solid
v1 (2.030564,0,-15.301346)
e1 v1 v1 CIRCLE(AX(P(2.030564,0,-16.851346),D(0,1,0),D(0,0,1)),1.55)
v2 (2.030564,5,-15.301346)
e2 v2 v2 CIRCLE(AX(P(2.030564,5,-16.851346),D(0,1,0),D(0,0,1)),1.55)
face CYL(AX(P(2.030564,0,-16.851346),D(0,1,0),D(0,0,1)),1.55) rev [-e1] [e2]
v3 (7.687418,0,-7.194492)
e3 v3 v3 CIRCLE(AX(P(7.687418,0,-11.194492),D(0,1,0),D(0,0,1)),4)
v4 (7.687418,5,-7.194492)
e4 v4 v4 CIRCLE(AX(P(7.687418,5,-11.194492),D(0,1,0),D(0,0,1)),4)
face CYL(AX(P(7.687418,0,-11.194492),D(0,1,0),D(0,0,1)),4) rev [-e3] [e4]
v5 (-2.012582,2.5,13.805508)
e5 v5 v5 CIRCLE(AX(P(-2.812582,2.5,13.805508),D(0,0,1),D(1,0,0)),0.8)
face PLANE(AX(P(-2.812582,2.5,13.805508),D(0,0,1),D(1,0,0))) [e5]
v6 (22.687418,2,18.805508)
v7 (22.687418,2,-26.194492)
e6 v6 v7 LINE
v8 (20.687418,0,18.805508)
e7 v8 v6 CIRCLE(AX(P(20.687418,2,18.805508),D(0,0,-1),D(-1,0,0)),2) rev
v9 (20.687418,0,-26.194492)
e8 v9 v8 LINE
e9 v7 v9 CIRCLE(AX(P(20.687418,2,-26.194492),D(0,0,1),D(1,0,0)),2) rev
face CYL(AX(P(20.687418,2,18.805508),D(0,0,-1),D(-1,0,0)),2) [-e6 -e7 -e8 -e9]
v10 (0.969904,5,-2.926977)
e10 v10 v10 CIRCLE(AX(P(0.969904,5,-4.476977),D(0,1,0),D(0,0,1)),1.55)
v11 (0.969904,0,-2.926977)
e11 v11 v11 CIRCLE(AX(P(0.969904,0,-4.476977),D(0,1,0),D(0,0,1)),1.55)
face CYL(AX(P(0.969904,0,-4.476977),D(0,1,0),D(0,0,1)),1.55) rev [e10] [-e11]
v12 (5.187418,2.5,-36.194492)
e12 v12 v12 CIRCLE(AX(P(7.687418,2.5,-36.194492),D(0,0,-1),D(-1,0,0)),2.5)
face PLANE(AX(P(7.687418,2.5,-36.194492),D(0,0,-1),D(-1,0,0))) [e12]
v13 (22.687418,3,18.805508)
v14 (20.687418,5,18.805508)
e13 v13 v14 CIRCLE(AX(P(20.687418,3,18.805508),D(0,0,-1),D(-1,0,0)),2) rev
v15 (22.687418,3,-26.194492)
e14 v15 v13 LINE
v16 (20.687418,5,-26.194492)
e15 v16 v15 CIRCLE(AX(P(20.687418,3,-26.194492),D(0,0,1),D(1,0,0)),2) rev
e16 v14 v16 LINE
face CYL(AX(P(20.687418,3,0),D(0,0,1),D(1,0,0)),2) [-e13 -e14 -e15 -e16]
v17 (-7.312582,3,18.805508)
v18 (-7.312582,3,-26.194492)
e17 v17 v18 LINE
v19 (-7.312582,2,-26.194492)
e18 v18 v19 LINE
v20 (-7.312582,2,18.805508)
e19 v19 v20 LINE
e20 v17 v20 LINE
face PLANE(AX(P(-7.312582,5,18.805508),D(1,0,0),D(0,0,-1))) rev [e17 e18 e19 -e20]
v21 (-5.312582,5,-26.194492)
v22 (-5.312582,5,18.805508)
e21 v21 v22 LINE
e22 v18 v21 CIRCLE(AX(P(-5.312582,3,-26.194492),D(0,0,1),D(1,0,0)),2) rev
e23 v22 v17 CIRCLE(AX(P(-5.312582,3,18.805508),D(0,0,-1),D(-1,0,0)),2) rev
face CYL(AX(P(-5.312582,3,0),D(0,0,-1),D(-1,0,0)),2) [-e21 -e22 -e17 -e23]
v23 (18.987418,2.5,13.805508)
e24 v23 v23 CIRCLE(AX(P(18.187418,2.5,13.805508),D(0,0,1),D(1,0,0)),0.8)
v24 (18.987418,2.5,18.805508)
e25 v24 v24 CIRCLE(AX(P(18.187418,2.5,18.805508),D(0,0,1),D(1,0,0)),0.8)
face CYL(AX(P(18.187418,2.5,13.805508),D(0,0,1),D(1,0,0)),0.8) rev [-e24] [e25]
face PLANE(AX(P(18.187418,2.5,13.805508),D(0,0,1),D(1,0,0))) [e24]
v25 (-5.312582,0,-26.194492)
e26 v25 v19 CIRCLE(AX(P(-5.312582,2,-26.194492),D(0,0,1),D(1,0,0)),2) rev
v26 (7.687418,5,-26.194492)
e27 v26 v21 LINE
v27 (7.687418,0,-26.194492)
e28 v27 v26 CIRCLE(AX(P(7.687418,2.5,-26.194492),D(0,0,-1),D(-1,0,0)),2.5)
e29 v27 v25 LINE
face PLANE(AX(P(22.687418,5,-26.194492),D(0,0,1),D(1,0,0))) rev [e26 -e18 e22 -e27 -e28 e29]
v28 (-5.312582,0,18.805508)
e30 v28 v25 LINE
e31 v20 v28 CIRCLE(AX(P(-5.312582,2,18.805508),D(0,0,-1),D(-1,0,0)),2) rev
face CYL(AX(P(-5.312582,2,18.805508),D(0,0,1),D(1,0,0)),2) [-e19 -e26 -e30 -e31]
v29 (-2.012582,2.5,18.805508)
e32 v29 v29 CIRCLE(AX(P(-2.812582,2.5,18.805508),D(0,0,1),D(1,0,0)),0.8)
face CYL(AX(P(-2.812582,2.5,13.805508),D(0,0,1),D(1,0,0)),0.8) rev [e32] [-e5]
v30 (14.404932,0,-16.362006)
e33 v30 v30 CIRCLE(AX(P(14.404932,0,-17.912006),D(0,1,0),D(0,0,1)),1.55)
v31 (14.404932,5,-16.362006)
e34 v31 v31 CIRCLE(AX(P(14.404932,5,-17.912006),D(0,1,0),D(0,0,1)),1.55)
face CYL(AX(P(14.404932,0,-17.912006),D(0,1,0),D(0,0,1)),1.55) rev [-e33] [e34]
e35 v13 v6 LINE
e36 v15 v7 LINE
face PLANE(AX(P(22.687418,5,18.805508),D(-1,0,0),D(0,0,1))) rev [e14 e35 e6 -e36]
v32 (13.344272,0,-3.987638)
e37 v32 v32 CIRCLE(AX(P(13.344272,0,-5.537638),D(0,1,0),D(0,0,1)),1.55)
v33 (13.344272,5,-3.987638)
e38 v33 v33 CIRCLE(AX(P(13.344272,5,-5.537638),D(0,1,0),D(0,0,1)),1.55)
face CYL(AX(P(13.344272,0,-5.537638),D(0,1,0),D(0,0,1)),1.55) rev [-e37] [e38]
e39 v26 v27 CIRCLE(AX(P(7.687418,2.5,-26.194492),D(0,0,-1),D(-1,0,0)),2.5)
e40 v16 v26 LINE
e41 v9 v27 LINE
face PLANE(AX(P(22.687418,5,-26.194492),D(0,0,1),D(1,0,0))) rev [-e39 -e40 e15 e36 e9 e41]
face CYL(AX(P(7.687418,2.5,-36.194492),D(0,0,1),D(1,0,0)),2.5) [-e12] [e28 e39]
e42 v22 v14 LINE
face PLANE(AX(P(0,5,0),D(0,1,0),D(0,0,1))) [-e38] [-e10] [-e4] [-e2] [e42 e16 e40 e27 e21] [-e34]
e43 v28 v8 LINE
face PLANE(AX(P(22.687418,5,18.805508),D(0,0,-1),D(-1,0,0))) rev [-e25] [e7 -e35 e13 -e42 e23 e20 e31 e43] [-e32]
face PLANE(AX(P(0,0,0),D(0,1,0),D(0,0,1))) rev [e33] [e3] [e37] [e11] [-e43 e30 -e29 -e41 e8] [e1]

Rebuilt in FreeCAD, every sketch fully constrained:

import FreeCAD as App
import Part
import Sketcher
Q = App.Units.Quantity


def edges_at(feature, points):
    """Names of the edges that pass closest to the given points."""
    edges = feature.Shape.Edges
    near = lambda p: min(range(len(edges)), key=lambda i: edges[i].distToShape(Part.Vertex(*p))[0])
    return sorted({f"Edge{near(p) + 1}" for p in points})


def add_polygon(sketch, points):
    """Adds a closed chain of lines whose ends are joined by coincident constraints."""
    first, n = sketch.GeometryCount, len(points)
    for a, b in zip(points, points[1:] + points[:1]):
        sketch.addGeometry(Part.LineSegment(App.Vector(*a, 0), App.Vector(*b, 0)), False)
    for i in range(n):
        sketch.addConstraint(Sketcher.Constraint("Coincident", first + i, 2, first + (i + 1) % n, 1))

doc = App.newDocument("Part")
body = doc.addObject("PartDesign::Body", "Body")

sketch1 = doc.addObject("Sketcher::SketchObject", "Sketch")
body.addObject(sketch1)
sketch1.AttachmentSupport = (doc.XZ_Plane, [""])
sketch1.MapMode = "FlatFace"
add_polygon(sketch1, [(-7, -26), (-7, 19), (23, 19), (23, -26)])
sketch1.addConstraint(Sketcher.Constraint("Vertical", 0))
sketch1.addConstraint(Sketcher.Constraint("Horizontal", 1))
sketch1.addConstraint(Sketcher.Constraint("Vertical", 2))
sketch1.addConstraint(Sketcher.Constraint("Horizontal", 3))
sketch1.addConstraint(Sketcher.Constraint("DistanceX", 1, 1, 1, 2, Q("30 mm")))
sketch1.addConstraint(Sketcher.Constraint("DistanceY", 0, 1, 0, 2, Q("45 mm")))
sketch1.addConstraint(Sketcher.Constraint("DistanceY", -1, 1, 0, 2, Q("18.805508 mm")))
sketch1.addConstraint(Sketcher.Constraint("DistanceX", 0, 2, -1, 1, Q("7.312582 mm")))
pad1 = doc.addObject("PartDesign::Pad", "Pad")
body.addObject(pad1)
pad1.Profile = sketch1
pad1.Length = 5
pad1.Reversed = True

sketch2 = doc.addObject("Sketcher::SketchObject", "Sketch001")
body.addObject(sketch2)
sketch2.AttachmentSupport = (doc.XZ_Plane, [""])
sketch2.MapMode = "FlatFace"
sketch2.AttachmentOffset = App.Placement(App.Vector(0, 0, -5), App.Rotation())
sketch2.addGeometry(Part.Circle(App.Vector(7.7, -11.2, 0), App.Vector(0, 0, 1), 4), False)
sketch2.addConstraint(Sketcher.Constraint("Diameter", 0, Q("8 mm")))
sketch2.addConstraint(Sketcher.Constraint("DistanceY", 0, 3, -1, 1, Q("11.194492 mm")))
sketch2.addConstraint(Sketcher.Constraint("DistanceX", -1, 1, 0, 3, Q("7.687418 mm")))
pocket1 = doc.addObject("PartDesign::Pocket", "Pocket")
body.addObject(pocket1)
pocket1.Profile = sketch2
pocket1.Length = 5
pocket1.Reversed = True

sketch3 = doc.addObject("Sketcher::SketchObject", "Sketch002")
body.addObject(sketch3)
sketch3.AttachmentSupport = (doc.XZ_Plane, [""])
sketch3.MapMode = "FlatFace"
sketch3.AttachmentOffset = App.Placement(App.Vector(0, 0, -5), App.Rotation())
sketch3.addGeometry(Part.Circle(App.Vector(2, -16.9, 0), App.Vector(0, 0, 1), 1.6), False)
sketch3.addGeometry(Part.Circle(App.Vector(14.4, -17.9, 0), App.Vector(0, 0, 1), 1.6), False)
sketch3.addGeometry(Part.Circle(App.Vector(13.3, -5.5, 0), App.Vector(0, 0, 1), 1.6), False)
sketch3.addGeometry(Part.Circle(App.Vector(1, -4.5, 0), App.Vector(0, 0, 1), 1.6), False)
sketch3.addConstraint(Sketcher.Constraint("Equal", 0, 1))
sketch3.addConstraint(Sketcher.Constraint("Equal", 1, 2))
sketch3.addConstraint(Sketcher.Constraint("Equal", 2, 3))
sketch3.addConstraint(Sketcher.Constraint("Diameter", 0, Q("3.1 mm")))
sketch3.addConstraint(Sketcher.Constraint("DistanceX", 0, 3, 1, 3, Q("12.374369 mm")))
sketch3.addConstraint(Sketcher.Constraint("DistanceY", 1, 3, 0, 3, Q("1.06066 mm")))
sketch3.addConstraint(Sketcher.Constraint("DistanceX", 2, 3, 1, 3, Q("1.06066 mm")))
sketch3.addConstraint(Sketcher.Constraint("DistanceY", 1, 3, 2, 3, Q("12.374369 mm")))
sketch3.addConstraint(Sketcher.Constraint("DistanceX", 3, 3, 2, 3, Q("12.374369 mm")))
sketch3.addConstraint(Sketcher.Constraint("DistanceY", 2, 3, 3, 3, Q("1.06066 mm")))
sketch3.addConstraint(Sketcher.Constraint("DistanceX", -1, 1, 0, 3, Q("2.030564 mm")))
sketch3.addConstraint(Sketcher.Constraint("DistanceY", 0, 3, -1, 1, Q("16.851346 mm")))
pocket2 = doc.addObject("PartDesign::Pocket", "Pocket001")
body.addObject(pocket2)
pocket2.Profile = sketch3
pocket2.Length = 5
pocket2.Reversed = True

sketch4 = doc.addObject("Sketcher::SketchObject", "Sketch003")
body.addObject(sketch4)
sketch4.AttachmentSupport = (doc.XY_Plane, [""])
sketch4.MapMode = "FlatFace"
sketch4.AttachmentOffset = App.Placement(App.Vector(0, 0, 18.805508), App.Rotation())
sketch4.addGeometry(Part.Circle(App.Vector(-2.8, 2.5, 0), App.Vector(0, 0, 1), 0.8), False)
sketch4.addGeometry(Part.Circle(App.Vector(18.2, 2.5, 0), App.Vector(0, 0, 1), 0.8), False)
sketch4.addConstraint(Sketcher.Constraint("Equal", 0, 1))
sketch4.addConstraint(Sketcher.Constraint("Horizontal", 0, 3, 1, 3))
sketch4.addConstraint(Sketcher.Constraint("Diameter", 0, Q("1.6 mm")))
sketch4.addConstraint(Sketcher.Constraint("DistanceX", 0, 3, 1, 3, Q("21 mm")))
sketch4.addConstraint(Sketcher.Constraint("DistanceY", -1, 1, 0, 3, Q("2.5 mm")))
sketch4.addConstraint(Sketcher.Constraint("DistanceX", 0, 3, -1, 1, Q("2.812582 mm")))
pocket3 = doc.addObject("PartDesign::Pocket", "Pocket002")
body.addObject(pocket3)
pocket3.Profile = sketch4
pocket3.Length = 5

sketch5 = doc.addObject("Sketcher::SketchObject", "Sketch004")
body.addObject(sketch5)
sketch5.AttachmentSupport = (doc.XY_Plane, [""])
sketch5.MapMode = "FlatFace"
sketch5.AttachmentOffset = App.Placement(App.Vector(0, 0, -26.194492), App.Rotation())
sketch5.addGeometry(Part.Circle(App.Vector(7.7, 2.5, 0), App.Vector(0, 0, 1), 2.5), False)
sketch5.addConstraint(Sketcher.Constraint("Diameter", 0, Q("5 mm")))
sketch5.addConstraint(Sketcher.Constraint("DistanceY", -1, 1, 0, 3, Q("2.5 mm")))
sketch5.addConstraint(Sketcher.Constraint("DistanceX", -1, 1, 0, 3, Q("7.687418 mm")))
pad2 = doc.addObject("PartDesign::Pad", "Pad001")
body.addObject(pad2)
pad2.Profile = sketch5
pad2.Length = 10
pad2.Reversed = True
doc.recompute()

fillet = doc.addObject("PartDesign::Fillet", "Fillet")
body.addObject(fillet)
fillet.Base = (pad2, edges_at(pad2, [
    (-7.313, 5, -3.694),
    (22.687, 5, -3.694),
    (-7.313, 0, -3.694),
    (22.687, 0, -3.694),
]))
fillet.Radius = 2

doc.recompute()
